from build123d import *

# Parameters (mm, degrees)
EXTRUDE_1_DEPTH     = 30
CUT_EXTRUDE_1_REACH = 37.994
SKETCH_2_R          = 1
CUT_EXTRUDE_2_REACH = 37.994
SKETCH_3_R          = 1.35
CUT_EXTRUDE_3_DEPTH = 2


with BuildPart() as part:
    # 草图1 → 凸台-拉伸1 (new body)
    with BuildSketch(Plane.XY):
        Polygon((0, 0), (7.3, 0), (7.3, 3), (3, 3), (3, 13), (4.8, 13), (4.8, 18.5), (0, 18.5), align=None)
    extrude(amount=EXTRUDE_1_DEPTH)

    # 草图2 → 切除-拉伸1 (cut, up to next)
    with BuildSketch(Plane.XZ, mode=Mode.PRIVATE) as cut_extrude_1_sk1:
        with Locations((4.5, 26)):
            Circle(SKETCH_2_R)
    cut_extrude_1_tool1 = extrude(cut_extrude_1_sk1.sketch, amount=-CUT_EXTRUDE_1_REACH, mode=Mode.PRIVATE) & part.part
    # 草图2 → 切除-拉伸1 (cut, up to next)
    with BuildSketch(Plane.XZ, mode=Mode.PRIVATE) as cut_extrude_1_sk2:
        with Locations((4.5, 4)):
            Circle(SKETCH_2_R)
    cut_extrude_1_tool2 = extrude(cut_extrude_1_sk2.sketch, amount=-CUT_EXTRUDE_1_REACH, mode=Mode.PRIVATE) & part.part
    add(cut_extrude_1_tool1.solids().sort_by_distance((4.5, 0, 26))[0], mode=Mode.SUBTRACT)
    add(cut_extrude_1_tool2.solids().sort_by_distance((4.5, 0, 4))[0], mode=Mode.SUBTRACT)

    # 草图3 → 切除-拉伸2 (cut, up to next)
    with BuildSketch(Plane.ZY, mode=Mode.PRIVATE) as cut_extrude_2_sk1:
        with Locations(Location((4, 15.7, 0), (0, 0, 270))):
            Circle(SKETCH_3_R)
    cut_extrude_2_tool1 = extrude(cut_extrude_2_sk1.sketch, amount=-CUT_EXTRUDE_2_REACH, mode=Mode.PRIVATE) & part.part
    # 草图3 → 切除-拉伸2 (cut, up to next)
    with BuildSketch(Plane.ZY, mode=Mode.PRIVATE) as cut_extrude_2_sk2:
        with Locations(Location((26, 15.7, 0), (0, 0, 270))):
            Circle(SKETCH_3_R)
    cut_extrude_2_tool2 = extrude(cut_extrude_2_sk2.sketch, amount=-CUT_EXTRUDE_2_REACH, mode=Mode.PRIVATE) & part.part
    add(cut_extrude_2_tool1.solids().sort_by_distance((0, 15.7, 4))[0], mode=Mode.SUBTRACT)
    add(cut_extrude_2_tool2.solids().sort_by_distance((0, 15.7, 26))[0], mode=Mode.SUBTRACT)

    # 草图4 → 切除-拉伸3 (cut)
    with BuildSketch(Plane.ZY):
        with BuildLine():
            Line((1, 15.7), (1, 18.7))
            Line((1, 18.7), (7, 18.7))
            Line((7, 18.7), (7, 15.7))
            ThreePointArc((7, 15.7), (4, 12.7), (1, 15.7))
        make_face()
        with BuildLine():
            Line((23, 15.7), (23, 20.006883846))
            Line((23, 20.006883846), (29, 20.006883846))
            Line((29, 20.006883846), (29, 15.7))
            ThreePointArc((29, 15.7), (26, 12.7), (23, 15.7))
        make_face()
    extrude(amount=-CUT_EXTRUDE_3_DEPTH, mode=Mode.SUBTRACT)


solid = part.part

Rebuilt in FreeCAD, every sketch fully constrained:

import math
import FreeCAD as App
import Part
import Sketcher

doc = App.newDocument("Part")
body = doc.addObject("PartDesign::Body", "Body")

sketch1 = body.newObject("Sketcher::SketchObject", "Sketch")
sketch1.AttachmentSupport = (doc.getObject("XY_Plane"), [""])
sketch1.MapMode = "FlatFace"
sketch1.addGeometry(Part.LineSegment(App.Vector(0, 0, 0), App.Vector(7.3, 0, 0)), False)
sketch1.addGeometry(Part.LineSegment(App.Vector(7.3, 0, 0), App.Vector(7.3, 3, 0)), False)
sketch1.addGeometry(Part.LineSegment(App.Vector(7.3, 3, 0), App.Vector(3, 3, 0)), False)
sketch1.addGeometry(Part.LineSegment(App.Vector(3, 3, 0), App.Vector(3, 13, 0)), False)
sketch1.addGeometry(Part.LineSegment(App.Vector(3, 13, 0), App.Vector(4.8, 13, 0)), False)
sketch1.addGeometry(Part.LineSegment(App.Vector(4.8, 13, 0), App.Vector(4.8, 18.5, 0)), False)
sketch1.addGeometry(Part.LineSegment(App.Vector(4.8, 18.5, 0), App.Vector(0, 18.5, 0)), False)
sketch1.addGeometry(Part.LineSegment(App.Vector(0, 18.5, 0), App.Vector(0, 0, 0)), False)
sketch1.addConstraint(Sketcher.Constraint("Coincident", 0, 2, 1, 1))
sketch1.addConstraint(Sketcher.Constraint("Coincident", 1, 2, 2, 1))
sketch1.addConstraint(Sketcher.Constraint("Coincident", 2, 2, 3, 1))
sketch1.addConstraint(Sketcher.Constraint("Coincident", 3, 2, 4, 1))
sketch1.addConstraint(Sketcher.Constraint("Coincident", 4, 2, 5, 1))
sketch1.addConstraint(Sketcher.Constraint("Coincident", 5, 2, 6, 1))
sketch1.addConstraint(Sketcher.Constraint("Coincident", 6, 2, 7, 1))
sketch1.addConstraint(Sketcher.Constraint("Coincident", 7, 2, 0, 1))
sketch1.addConstraint(Sketcher.Constraint("Horizontal", 0))
sketch1.addConstraint(Sketcher.Constraint("Vertical", 1))
sketch1.addConstraint(Sketcher.Constraint("Horizontal", 2))
sketch1.addConstraint(Sketcher.Constraint("Vertical", 3))
sketch1.addConstraint(Sketcher.Constraint("Horizontal", 4))
sketch1.addConstraint(Sketcher.Constraint("Vertical", 5))
sketch1.addConstraint(Sketcher.Constraint("Horizontal", 6))
sketch1.addConstraint(Sketcher.Constraint("Vertical", 7))
sketch1.addConstraint(Sketcher.Constraint("Coincident", 7, 2, -1, 1))
sketch1.addConstraint(Sketcher.Constraint("DistanceY", 1, 1, 1, 2, 3.0))
sketch1.addConstraint(Sketcher.Constraint("DistanceY", 3, 1, 3, 2, 10.0))
sketch1.addConstraint(Sketcher.Constraint("DistanceX", 0, 1, 0, 2, 7.3))
sketch1.addConstraint(Sketcher.Constraint("DistanceX", 2, 2, 2, 1, 4.3))
sketch1.addConstraint(Sketcher.Constraint("DistanceX", 4, 1, 4, 2, 1.8))
sketch1.addConstraint(Sketcher.Constraint("DistanceY", 5, 1, 5, 2, 5.5))
pad1 = body.newObject("PartDesign::Pad", "Pad")
pad1.Profile = sketch1
pad1.Length = 30

sketch2 = body.newObject("Sketcher::SketchObject", "Sketch001")
sketch2.AttachmentSupport = (doc.getObject("XZ_Plane"), [""])
sketch2.MapMode = "FlatFace"
sketch2.addGeometry(Part.Circle(App.Vector(4.5, 26, 0), App.Vector(0, 0, 1), 1), False)
sketch2.addConstraint(Sketcher.Constraint("Diameter", 0, 2.0))
sketch2.addConstraint(Sketcher.Constraint("DistanceY", -1, 1, 0, 3, 26.0))
sketch2.addConstraint(Sketcher.Constraint("DistanceX", -1, 1, 0, 3, 4.5))
pocket1 = body.newObject("PartDesign::Pocket", "Pocket")
pocket1.Profile = sketch2
pocket1.Type = "UpToFirst"

sketch3 = body.newObject("Sketcher::SketchObject", "Sketch002")
sketch3.AttachmentSupport = (doc.getObject("XZ_Plane"), [""])
sketch3.MapMode = "FlatFace"
sketch3.addGeometry(Part.Circle(App.Vector(4.5, 4, 0), App.Vector(0, 0, 1), 1), False)
sketch3.addConstraint(Sketcher.Constraint("Diameter", 0, 2.0))
sketch3.addConstraint(Sketcher.Constraint("DistanceY", -1, 1, 0, 3, 4.0))
sketch3.addConstraint(Sketcher.Constraint("DistanceX", -1, 1, 0, 3, 4.5))
pocket2 = body.newObject("PartDesign::Pocket", "Pocket001")
pocket2.Profile = sketch3
pocket2.Type = "UpToFirst"

sketch4 = body.newObject("Sketcher::SketchObject", "Sketch003")
sketch4.AttachmentSupport = (doc.getObject("YZ_Plane"), [""])
sketch4.MapMode = "FlatFace"
sketch4.addGeometry(Part.Circle(App.Vector(15.7, 4, 0), App.Vector(0, 0, 1), 1.4), False)
sketch4.addConstraint(Sketcher.Constraint("Diameter", 0, 2.7))
sketch4.addConstraint(Sketcher.Constraint("DistanceY", -1, 1, 0, 3, 4.0))
sketch4.addConstraint(Sketcher.Constraint("DistanceX", -1, 1, 0, 3, 15.7))
pocket3 = body.newObject("PartDesign::Pocket", "Pocket002")
pocket3.Profile = sketch4
pocket3.Type = "UpToFirst"
pocket3.Reversed = True

sketch5 = body.newObject("Sketcher::SketchObject", "Sketch004")
sketch5.AttachmentSupport = (doc.getObject("YZ_Plane"), [""])
sketch5.MapMode = "FlatFace"
sketch5.addGeometry(Part.Circle(App.Vector(15.7, 26, 0), App.Vector(0, 0, 1), 1.4), False)
sketch5.addConstraint(Sketcher.Constraint("Diameter", 0, 2.7))
sketch5.addConstraint(Sketcher.Constraint("DistanceY", -1, 1, 0, 3, 26.0))
sketch5.addConstraint(Sketcher.Constraint("DistanceX", -1, 1, 0, 3, 15.7))
pocket4 = body.newObject("PartDesign::Pocket", "Pocket003")
pocket4.Profile = sketch5
pocket4.Type = "UpToFirst"
pocket4.Reversed = True

sketch6 = body.newObject("Sketcher::SketchObject", "Sketch005")
sketch6.AttachmentSupport = (doc.getObject("YZ_Plane"), [""])
sketch6.MapMode = "FlatFace"
sketch6.addGeometry(Part.LineSegment(App.Vector(18.7, 1, 0), App.Vector(15.7, 1, 0)), False)
sketch6.addGeometry(Part.ArcOfCircle(Part.Circle(App.Vector(15.7, 4, 0), App.Vector(0, 0, 1), 3), math.radians(90), math.radians(270)), False)
sketch6.addGeometry(Part.LineSegment(App.Vector(15.7, 7, 0), App.Vector(18.7, 7, 0)), False)
sketch6.addGeometry(Part.LineSegment(App.Vector(18.7, 7, 0), App.Vector(18.7, 1, 0)), False)
sketch6.addGeometry(Part.LineSegment(App.Vector(20, 23, 0), App.Vector(15.7, 23, 0)), False)
sketch6.addGeometry(Part.ArcOfCircle(Part.Circle(App.Vector(15.7, 26, 0), App.Vector(0, 0, 1), 3), math.radians(90), math.radians(270)), False)
sketch6.addGeometry(Part.LineSegment(App.Vector(15.7, 29, 0), App.Vector(20, 29, 0)), False)
sketch6.addGeometry(Part.LineSegment(App.Vector(20, 29, 0), App.Vector(20, 23, 0)), False)
sketch6.addConstraint(Sketcher.Constraint("Tangent", 0, 2, 1, 2))
sketch6.addConstraint(Sketcher.Constraint("Tangent", 1, 1, 2, 1))
sketch6.addConstraint(Sketcher.Constraint("Coincident", 2, 2, 3, 1))
sketch6.addConstraint(Sketcher.Constraint("Coincident", 3, 2, 0, 1))
sketch6.addConstraint(Sketcher.Constraint("Tangent", 4, 2, 5, 2))
sketch6.addConstraint(Sketcher.Constraint("Tangent", 5, 1, 6, 1))
sketch6.addConstraint(Sketcher.Constraint("Coincident", 6, 2, 7, 1))
sketch6.addConstraint(Sketcher.Constraint("Coincident", 7, 2, 4, 1))
sketch6.addConstraint(Sketcher.Constraint("Horizontal", 0))
sketch6.addConstraint(Sketcher.Constraint("Horizontal", 2))
sketch6.addConstraint(Sketcher.Constraint("Vertical", 3))
sketch6.addConstraint(Sketcher.Constraint("Horizontal", 4))
sketch6.addConstraint(Sketcher.Constraint("Horizontal", 6))
sketch6.addConstraint(Sketcher.Constraint("Vertical", 7))
sketch6.addConstraint(Sketcher.Constraint("Equal", 1, 5))
sketch6.addConstraint(Sketcher.Constraint("Vertical", 1, 3, 5, 3))
sketch6.addConstraint(Sketcher.Constraint("Radius", 1, 3.0))
sketch6.addConstraint(Sketcher.Constraint("DistanceX", 0, 2, 0, 1, 3.0))
sketch6.addConstraint(Sketcher.Constraint("DistanceY", -1, 1, 1, 3, 4.0))
sketch6.addConstraint(Sketcher.Constraint("DistanceY", -1, 1, 5, 3, 26.0))
sketch6.addConstraint(Sketcher.Constraint("DistanceX", -1, 1, 1, 3, 15.7))
sketch6.addConstraint(Sketcher.Constraint("DistanceX", 4, 2, 4, 1, 4.306884))
pocket5 = body.newObject("PartDesign::Pocket", "Pocket004")
pocket5.Profile = sketch6
pocket5.Length = 2
pocket5.Reversed = True

doc.recompute()
